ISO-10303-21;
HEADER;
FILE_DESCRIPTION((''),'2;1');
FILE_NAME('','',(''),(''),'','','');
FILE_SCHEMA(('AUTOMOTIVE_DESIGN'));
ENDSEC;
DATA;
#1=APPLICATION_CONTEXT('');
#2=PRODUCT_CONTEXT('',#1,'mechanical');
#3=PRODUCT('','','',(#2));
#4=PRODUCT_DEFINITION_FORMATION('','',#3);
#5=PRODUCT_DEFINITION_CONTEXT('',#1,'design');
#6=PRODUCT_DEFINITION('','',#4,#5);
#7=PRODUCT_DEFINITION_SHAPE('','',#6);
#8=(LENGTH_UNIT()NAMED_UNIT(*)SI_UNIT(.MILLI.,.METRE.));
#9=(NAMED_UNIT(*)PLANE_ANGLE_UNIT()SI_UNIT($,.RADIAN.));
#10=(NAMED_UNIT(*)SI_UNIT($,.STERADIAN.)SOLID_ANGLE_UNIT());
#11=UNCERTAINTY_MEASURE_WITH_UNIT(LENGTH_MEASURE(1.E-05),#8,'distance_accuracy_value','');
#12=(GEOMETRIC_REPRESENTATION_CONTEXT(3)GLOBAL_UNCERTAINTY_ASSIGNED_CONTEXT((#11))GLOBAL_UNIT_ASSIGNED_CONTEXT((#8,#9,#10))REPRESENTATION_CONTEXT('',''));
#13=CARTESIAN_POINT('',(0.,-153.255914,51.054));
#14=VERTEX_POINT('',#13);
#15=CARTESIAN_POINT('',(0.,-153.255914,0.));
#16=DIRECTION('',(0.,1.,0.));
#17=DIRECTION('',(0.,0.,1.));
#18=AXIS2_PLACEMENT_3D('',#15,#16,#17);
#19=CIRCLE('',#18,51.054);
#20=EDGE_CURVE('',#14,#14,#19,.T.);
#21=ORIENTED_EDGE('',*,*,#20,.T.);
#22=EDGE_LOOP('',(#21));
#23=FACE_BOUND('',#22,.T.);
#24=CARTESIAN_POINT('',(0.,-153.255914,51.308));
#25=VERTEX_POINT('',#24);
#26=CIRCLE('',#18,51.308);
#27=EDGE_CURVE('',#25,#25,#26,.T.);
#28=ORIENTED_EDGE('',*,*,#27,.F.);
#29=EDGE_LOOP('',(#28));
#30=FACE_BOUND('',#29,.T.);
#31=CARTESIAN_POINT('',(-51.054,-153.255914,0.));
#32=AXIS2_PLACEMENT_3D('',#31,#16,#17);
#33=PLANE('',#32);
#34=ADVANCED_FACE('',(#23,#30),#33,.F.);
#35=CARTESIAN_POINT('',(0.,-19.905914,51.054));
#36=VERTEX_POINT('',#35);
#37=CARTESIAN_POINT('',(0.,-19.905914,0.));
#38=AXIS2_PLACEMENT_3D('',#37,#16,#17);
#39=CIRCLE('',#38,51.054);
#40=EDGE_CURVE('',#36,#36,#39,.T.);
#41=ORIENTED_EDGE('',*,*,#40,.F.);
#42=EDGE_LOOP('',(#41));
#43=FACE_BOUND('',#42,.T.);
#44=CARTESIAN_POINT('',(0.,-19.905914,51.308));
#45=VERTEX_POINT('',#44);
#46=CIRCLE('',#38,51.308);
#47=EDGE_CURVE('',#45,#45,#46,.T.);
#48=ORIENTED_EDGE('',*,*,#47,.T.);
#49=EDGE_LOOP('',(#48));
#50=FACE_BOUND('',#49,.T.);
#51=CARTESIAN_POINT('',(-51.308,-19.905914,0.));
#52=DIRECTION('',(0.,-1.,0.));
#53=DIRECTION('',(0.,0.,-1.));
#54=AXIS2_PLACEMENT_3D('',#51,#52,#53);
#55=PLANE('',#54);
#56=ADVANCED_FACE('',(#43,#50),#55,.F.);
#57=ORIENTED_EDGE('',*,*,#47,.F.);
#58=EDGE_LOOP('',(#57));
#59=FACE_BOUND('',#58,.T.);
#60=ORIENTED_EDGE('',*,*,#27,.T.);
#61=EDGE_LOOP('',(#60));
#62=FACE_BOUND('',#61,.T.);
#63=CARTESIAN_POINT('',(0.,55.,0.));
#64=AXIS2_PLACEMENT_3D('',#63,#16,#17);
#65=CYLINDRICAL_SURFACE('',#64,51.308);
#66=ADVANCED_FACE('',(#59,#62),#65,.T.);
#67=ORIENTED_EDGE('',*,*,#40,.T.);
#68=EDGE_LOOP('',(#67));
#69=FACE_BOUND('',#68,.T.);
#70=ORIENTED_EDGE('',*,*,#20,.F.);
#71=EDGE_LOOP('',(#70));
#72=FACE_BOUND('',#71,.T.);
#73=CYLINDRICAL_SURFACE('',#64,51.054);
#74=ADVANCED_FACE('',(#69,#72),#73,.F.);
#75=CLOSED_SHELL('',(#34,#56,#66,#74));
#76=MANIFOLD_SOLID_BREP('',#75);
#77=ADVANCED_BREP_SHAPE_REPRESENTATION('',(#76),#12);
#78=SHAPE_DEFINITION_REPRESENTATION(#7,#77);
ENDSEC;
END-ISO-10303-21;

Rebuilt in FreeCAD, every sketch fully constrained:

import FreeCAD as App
import Part
import Sketcher
from FreeCAD import Vector
Q = App.Units.Quantity

doc = App.newDocument("Part")
params = doc.addObject("Spreadsheet::Sheet", "Params")
for row, (alias, value) in enumerate([
    ("sketch1_width", "0.01 in"),
    ("sketch1_height", "5.25 in"),
    ("revolution_angle", "360 deg"),
], start=1):
    params.set(f"A{row}", alias)
    params.set(f"B{row}", "=" + value)
    params.setAlias(f"B{row}", alias)

body = doc.addObject("PartDesign::Body", "Body")

# Sketch on XY plane
sketch1 = body.newObject("Sketcher::SketchObject", "Sketch")
sketch1.AttachmentSupport = (doc.getObject("XY_Plane"), [""])
sketch1.MapMode = "FlatFace"
sketch1.addGeometry([
    Part.LineSegment(Vector(-51.308, -19.905914, 0), Vector(-51.308, -153.255914, 0)),
    Part.LineSegment(Vector(-51.308, -153.255914, 0), Vector(-51.054, -153.255914, 0)),
    Part.LineSegment(Vector(-51.054, -153.255914, 0), Vector(-51.054, -19.905914, 0)),
    Part.LineSegment(Vector(-51.054, -19.905914, 0), Vector(-51.308, -19.905914, 0)),
], False)
sketch1.addConstraint([
    Sketcher.Constraint("Coincident", 0, 2, 1, 1),
    Sketcher.Constraint("Coincident", 1, 2, 2, 1),
    Sketcher.Constraint("Coincident", 2, 2, 3, 1),
    Sketcher.Constraint("Coincident", 3, 2, 0, 1),
    Sketcher.Constraint("Vertical", 0),
    Sketcher.Constraint("Horizontal", 1),
    Sketcher.Constraint("Vertical", 2),
    Sketcher.Constraint("Horizontal", 3),
    Sketcher.Constraint("DistanceX", 1, 1, 1, 2, Q("0.01 in")),
    Sketcher.Constraint("DistanceY", 0, 2, 0, 1, Q("5.25 in")),
    Sketcher.Constraint("DistanceX", 0, 2, -1, 1, Q("2.02 in")),
    Sketcher.Constraint("DistanceY", 0, 2, -1, 1, 153.255914),
])
sketch1.setExpression("Constraints[8]", "Params.sketch1_width")
sketch1.setExpression("Constraints[9]", "Params.sketch1_height")
revolution = body.newObject("PartDesign::Revolution", "Revolution")
revolution.Profile = sketch1
revolution.ReferenceAxis = (sketch1, ["V_Axis"])
revolution.setExpression("Angle", "Params.revolution_angle")

doc.recompute()
